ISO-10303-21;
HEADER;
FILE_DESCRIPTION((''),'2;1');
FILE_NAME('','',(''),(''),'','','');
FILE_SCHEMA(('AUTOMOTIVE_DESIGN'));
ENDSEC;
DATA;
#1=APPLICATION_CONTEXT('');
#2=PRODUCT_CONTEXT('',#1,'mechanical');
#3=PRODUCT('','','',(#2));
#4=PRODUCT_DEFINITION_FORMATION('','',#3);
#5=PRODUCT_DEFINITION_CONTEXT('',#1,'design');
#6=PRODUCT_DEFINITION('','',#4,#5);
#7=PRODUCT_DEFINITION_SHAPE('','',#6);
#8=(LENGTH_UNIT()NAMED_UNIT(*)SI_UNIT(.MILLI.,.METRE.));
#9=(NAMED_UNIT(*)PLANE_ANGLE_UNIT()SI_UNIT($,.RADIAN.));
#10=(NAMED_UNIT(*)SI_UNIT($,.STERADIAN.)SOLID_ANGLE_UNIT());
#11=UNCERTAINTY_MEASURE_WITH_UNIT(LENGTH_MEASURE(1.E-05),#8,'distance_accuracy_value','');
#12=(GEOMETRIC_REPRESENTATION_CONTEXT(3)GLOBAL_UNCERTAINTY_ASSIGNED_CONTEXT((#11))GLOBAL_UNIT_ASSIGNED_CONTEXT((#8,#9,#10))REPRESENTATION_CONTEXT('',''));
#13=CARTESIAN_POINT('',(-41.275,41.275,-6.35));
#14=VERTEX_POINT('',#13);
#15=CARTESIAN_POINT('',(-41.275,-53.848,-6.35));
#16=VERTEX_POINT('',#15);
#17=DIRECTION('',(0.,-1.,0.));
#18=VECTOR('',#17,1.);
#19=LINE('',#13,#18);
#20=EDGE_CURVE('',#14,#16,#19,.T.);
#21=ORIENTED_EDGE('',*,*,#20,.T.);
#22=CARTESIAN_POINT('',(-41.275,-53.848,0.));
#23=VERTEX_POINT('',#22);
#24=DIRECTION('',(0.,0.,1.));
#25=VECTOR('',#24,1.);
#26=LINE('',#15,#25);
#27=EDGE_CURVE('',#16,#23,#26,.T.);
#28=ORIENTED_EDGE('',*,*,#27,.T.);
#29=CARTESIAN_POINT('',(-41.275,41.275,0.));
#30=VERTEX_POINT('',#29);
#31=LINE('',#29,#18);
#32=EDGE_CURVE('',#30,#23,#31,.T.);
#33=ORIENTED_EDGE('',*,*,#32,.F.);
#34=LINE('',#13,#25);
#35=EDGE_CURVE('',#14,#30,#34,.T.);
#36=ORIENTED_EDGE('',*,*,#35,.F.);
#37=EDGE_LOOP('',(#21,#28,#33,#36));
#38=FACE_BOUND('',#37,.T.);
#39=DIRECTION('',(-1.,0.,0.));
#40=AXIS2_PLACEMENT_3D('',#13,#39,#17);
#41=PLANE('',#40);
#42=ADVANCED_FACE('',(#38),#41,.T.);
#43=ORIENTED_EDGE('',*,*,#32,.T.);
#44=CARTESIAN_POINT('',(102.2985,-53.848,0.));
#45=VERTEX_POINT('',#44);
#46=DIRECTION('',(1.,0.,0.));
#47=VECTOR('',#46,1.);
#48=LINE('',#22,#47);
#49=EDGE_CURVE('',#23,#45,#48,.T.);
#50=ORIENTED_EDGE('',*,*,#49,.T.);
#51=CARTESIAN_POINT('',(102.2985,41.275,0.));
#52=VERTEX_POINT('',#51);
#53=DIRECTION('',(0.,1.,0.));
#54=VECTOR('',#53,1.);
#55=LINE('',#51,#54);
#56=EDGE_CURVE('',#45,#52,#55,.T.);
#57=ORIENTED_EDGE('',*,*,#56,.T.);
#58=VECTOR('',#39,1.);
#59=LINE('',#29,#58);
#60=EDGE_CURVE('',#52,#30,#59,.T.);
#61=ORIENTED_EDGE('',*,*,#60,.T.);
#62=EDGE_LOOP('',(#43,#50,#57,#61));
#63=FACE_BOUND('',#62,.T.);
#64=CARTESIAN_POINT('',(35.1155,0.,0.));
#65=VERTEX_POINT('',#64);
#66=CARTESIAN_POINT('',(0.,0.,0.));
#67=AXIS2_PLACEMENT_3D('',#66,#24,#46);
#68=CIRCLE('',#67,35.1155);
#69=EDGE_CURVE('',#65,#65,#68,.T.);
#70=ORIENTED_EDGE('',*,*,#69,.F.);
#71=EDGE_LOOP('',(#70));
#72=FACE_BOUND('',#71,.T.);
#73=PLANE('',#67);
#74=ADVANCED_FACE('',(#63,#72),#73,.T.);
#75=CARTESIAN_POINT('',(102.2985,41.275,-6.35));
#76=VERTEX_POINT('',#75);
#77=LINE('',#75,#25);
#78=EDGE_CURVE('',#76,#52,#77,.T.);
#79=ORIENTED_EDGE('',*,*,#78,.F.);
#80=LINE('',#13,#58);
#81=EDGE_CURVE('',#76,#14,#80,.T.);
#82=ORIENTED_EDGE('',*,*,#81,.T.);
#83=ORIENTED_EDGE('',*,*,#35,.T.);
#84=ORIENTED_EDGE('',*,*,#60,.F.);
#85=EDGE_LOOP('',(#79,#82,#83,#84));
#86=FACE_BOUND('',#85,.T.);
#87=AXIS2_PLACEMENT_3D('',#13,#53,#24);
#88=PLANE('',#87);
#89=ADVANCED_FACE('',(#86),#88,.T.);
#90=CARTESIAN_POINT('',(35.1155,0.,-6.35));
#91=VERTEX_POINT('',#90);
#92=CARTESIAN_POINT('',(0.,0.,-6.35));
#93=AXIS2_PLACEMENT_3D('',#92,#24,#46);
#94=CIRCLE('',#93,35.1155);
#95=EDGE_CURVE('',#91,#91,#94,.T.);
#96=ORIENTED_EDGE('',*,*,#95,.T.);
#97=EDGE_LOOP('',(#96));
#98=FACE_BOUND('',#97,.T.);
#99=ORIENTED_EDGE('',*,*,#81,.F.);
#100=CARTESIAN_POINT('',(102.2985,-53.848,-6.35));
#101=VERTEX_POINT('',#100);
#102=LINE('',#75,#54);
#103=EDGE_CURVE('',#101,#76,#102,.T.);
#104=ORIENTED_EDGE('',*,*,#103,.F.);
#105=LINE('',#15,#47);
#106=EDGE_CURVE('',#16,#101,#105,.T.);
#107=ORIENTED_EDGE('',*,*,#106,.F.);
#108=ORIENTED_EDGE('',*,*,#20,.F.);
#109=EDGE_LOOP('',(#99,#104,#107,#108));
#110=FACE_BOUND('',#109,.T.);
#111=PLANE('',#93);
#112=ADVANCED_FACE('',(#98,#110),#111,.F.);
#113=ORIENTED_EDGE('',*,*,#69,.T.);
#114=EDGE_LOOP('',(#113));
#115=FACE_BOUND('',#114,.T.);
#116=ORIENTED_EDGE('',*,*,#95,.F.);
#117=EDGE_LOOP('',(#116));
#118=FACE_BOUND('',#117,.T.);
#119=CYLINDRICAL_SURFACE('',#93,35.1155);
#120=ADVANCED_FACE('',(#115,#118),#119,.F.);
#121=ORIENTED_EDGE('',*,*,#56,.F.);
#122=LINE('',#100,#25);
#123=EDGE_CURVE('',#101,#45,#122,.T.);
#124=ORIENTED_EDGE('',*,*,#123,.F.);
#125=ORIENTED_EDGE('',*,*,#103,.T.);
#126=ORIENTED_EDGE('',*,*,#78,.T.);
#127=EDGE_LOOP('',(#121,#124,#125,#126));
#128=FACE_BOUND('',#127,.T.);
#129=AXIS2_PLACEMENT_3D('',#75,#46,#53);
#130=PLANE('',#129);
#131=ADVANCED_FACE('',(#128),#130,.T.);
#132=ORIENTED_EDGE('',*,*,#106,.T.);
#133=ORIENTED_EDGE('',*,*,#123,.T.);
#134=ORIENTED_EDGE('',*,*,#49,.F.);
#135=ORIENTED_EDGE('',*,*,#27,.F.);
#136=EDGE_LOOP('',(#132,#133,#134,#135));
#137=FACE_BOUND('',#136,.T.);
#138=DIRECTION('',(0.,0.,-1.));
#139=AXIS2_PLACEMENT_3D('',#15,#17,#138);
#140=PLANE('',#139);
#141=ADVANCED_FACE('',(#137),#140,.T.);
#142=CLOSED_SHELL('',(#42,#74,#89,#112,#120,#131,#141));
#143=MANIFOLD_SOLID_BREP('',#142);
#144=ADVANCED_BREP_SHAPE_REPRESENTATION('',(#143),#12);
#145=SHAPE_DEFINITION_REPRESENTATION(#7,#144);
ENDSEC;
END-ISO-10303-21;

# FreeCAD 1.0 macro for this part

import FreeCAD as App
import Part
import Sketcher
Q = App.Units.Quantity

doc = App.newDocument("Part")
body = doc.addObject("PartDesign::Body", "Body")

# Sketch on XY plane
sketch1 = body.newObject("Sketcher::SketchObject", "Sketch")
sketch1.AttachmentSupport = (doc.getObject("XY_Plane"), [""])
sketch1.MapMode = "FlatFace"
sketch1.addGeometry([
    Part.LineSegment(App.Vector(-41, 41, 0), App.Vector(-41, -54, 0)),  # 0
    Part.LineSegment(App.Vector(-41, -54, 0), App.Vector(102, -54, 0)),  # 1
    Part.LineSegment(App.Vector(102, -54, 0), App.Vector(102, 41, 0)),  # 2
    Part.LineSegment(App.Vector(102, 41, 0), App.Vector(-41, 41, 0)),  # 3
    Part.Circle(App.Vector(0, 0, 0), App.Vector(0, 0, 1), 35),  # 4
], False)
sketch1.addConstraint([
    Sketcher.Constraint("Coincident", 0, 2, 1, 1),
    Sketcher.Constraint("Coincident", 1, 2, 2, 1),
    Sketcher.Constraint("Coincident", 2, 2, 3, 1),
    Sketcher.Constraint("Coincident", 3, 2, 0, 1),
    Sketcher.Constraint("Vertical", 0),
    Sketcher.Constraint("Horizontal", 1),
    Sketcher.Constraint("Vertical", 2),
    Sketcher.Constraint("Horizontal", 3),
    Sketcher.Constraint("Coincident", 4, 3, -1, 1),
    Sketcher.Constraint("Diameter", 4, Q("2.765 in")),
    Sketcher.Constraint("DistanceY", 0, 2, 0, 1, Q("3.745 in")),
    Sketcher.Constraint("DistanceY", 0, 2, -1, 1, Q("2.12 in")),
    Sketcher.Constraint("DistanceX", 1, 1, 1, 2, Q("5.6525 in")),
    Sketcher.Constraint("DistanceX", 0, 2, -1, 1, Q("1.625 in")),
])
pad1 = body.newObject("PartDesign::Pad", "Pad")
pad1.Profile = sketch1
pad1.Length = Q("0.25 in")
pad1.Reversed = True

doc.recompute()
